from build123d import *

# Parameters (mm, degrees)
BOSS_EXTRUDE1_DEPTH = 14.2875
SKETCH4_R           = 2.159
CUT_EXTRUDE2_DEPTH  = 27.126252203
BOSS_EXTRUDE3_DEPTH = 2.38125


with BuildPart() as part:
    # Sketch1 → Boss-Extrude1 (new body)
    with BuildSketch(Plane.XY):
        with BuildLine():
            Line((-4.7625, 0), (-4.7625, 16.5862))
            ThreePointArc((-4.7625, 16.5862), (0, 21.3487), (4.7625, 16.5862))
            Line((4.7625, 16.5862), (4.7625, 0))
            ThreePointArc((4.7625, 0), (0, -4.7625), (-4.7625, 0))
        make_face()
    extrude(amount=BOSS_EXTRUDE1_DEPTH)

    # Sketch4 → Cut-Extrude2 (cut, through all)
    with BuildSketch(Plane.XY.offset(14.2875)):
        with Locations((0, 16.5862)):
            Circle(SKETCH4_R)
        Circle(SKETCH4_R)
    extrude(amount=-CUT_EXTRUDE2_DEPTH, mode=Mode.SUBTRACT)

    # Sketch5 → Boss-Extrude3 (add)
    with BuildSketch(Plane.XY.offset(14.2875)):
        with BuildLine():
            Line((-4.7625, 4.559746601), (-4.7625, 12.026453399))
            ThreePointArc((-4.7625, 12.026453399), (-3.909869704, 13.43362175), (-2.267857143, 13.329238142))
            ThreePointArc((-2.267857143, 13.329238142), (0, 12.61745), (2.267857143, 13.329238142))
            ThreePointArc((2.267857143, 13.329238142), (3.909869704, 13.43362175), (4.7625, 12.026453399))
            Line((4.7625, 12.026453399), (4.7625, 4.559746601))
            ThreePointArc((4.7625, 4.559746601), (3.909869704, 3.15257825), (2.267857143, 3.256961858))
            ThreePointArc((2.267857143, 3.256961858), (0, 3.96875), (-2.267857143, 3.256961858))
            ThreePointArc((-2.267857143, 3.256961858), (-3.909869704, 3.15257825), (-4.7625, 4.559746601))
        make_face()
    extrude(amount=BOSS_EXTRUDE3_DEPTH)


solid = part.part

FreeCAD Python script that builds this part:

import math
import FreeCAD as App
import Part
import Sketcher
Q = App.Units.Quantity

doc = App.newDocument("Part")
params = doc.addObject("Spreadsheet::Sheet", "Params")
for row, (alias, value) in enumerate([
    ("sketch1_radius", "0.1875 in"),
    ("sketch1_height", "0.653 in"),
    ("pad1_length", "0.5625 in"),
    ("sketch2_diameter", "0.17 in"),
    ("sketch3_radius", "0.0625 in"),
    ("sketch3_radius2", "0.15625 in"),
    ("pad2_length", "0.09375 in"),
], start=1):
    params.set(f"A{row}", alias)
    params.set(f"B{row}", "=" + value)
    params.setAlias(f"B{row}", alias)

body = doc.addObject("PartDesign::Body", "Body")

# Sketch on XY plane
sketch1 = body.newObject("Sketcher::SketchObject", "Sketch")
sketch1.AttachmentSupport = (doc.getObject("XY_Plane"), [""])
sketch1.MapMode = "FlatFace"
sketch1.addGeometry([
    Part.LineSegment(App.Vector(-4.8, 16.6, 0), App.Vector(-4.8, 0, 0)),
    Part.ArcOfCircle(Part.Circle(App.Vector(0, 0, 0), App.Vector(0, 0, 1), 4.8), math.radians(180), math.radians(360)),
    Part.LineSegment(App.Vector(4.8, 0, 0), App.Vector(4.8, 16.6, 0)),
    Part.ArcOfCircle(Part.Circle(App.Vector(0, 16.6, 0), App.Vector(0, 0, 1), 4.8), math.radians(0), math.radians(180)),
], False)
sketch1.addConstraint([
    Sketcher.Constraint("Tangent", 0, 2, 1, 1),
    Sketcher.Constraint("Tangent", 1, 2, 2, 1),
    Sketcher.Constraint("Tangent", 2, 2, 3, 1),
    Sketcher.Constraint("Tangent", 3, 2, 0, 1),
    Sketcher.Constraint("Vertical", 0),
    Sketcher.Constraint("Vertical", 2),
    Sketcher.Constraint("Coincident", 1, 3, -1, 1),
    Sketcher.Constraint("Radius", 1, Q("0.1875 in")),
    Sketcher.Constraint("DistanceY", 0, 2, 0, 1, Q("0.653 in")),
])
sketch1.setExpression("Constraints[7]", "Params.sketch1_radius")
sketch1.setExpression("Constraints[8]", "Params.sketch1_height")
pad1 = body.newObject("PartDesign::Pad", "Pad")
pad1.Profile = sketch1
pad1.setExpression("Length", "Params.pad1_length")

# Sketch on XY plane
sketch2 = body.newObject("Sketcher::SketchObject", "Sketch001")
sketch2.AttachmentSupport = (doc.getObject("XY_Plane"), [""])
sketch2.MapMode = "FlatFace"
sketch2.AttachmentOffset = App.Placement(App.Vector(0, 0, 0.5625 * 25.4), App.Rotation())
sketch2.addGeometry([
    Part.Circle(App.Vector(0, 16.6, 0), App.Vector(0, 0, 1), 2.2),
    Part.Circle(App.Vector(0, 0, 0), App.Vector(0, 0, 1), 2.2),
], False)
sketch2.addConstraint([
    Sketcher.Constraint("Coincident", 1, 3, -1, 1),
    Sketcher.Constraint("Equal", 0, 1),
    Sketcher.Constraint("PointOnObject", 0, 3, -2),
    Sketcher.Constraint("Diameter", 0, Q("0.17 in")),
    Sketcher.Constraint("DistanceY", -1, 1, 0, 3, Q("0.653 in")),
])
sketch2.setExpression("Constraints[3]", "Params.sketch2_diameter")
pocket1 = body.newObject("PartDesign::Pocket", "Pocket")
pocket1.Profile = sketch2
pocket1.Type = "ThroughAll"

# Sketch on XY plane
sketch3 = body.newObject("Sketcher::SketchObject", "Sketch002")
sketch3.AttachmentSupport = (doc.getObject("XY_Plane"), [""])
sketch3.MapMode = "FlatFace"
sketch3.AttachmentOffset = App.Placement(App.Vector(0, 0, 0.5625 * 25.4), App.Rotation())
sketch3.addGeometry([
    Part.LineSegment(App.Vector(-4.8, 12, 0), App.Vector(-4.8, 4.6, 0)),  # 0
    Part.ArcOfCircle(Part.Circle(App.Vector(-3.2, 4.6, 0), App.Vector(0, 0, 1), 1.6), math.radians(180), math.radians(305)),  # 1
    Part.ArcOfCircle(Part.Circle(App.Vector(0, 0, 0), App.Vector(0, 0, 1), 4), math.radians(55), math.radians(125)),  # 2
    Part.ArcOfCircle(Part.Circle(App.Vector(3.2, 4.6, 0), App.Vector(0, 0, 1), 1.6), math.radians(-125), math.radians(0)),  # 3
    Part.LineSegment(App.Vector(4.8, 4.6, 0), App.Vector(4.8, 12, 0)),  # 4
    Part.ArcOfCircle(Part.Circle(App.Vector(3.2, 12, 0), App.Vector(0, 0, 1), 1.6), math.radians(0), math.radians(125)),  # 5
    Part.ArcOfCircle(Part.Circle(App.Vector(0, 16.6, 0), App.Vector(0, 0, 1), 4), math.radians(-125), math.radians(-55)),  # 6
    Part.ArcOfCircle(Part.Circle(App.Vector(-3.2, 12, 0), App.Vector(0, 0, 1), 1.6), math.radians(55), math.radians(180)),  # 7
], False)
sketch3.addConstraint([
    Sketcher.Constraint("Tangent", 0, 2, 1, 1),
    Sketcher.Constraint("Tangent", 1, 2, 2, 2),
    Sketcher.Constraint("Tangent", 2, 1, 3, 1),
    Sketcher.Constraint("Tangent", 3, 2, 4, 1),
    Sketcher.Constraint("Tangent", 4, 2, 5, 1),
    Sketcher.Constraint("Tangent", 5, 2, 6, 2),
    Sketcher.Constraint("Tangent", 6, 1, 7, 1),
    Sketcher.Constraint("Tangent", 7, 2, 0, 1),
    Sketcher.Constraint("Vertical", 0),
    Sketcher.Constraint("Vertical", 4),
    Sketcher.Constraint("Coincident", 2, 3, -1, 1),
    Sketcher.Constraint("Equal", 1, 3),
    Sketcher.Constraint("Equal", 3, 5),
    Sketcher.Constraint("Equal", 2, 6),
    Sketcher.Constraint("Equal", 5, 7),
    Sketcher.Constraint("Symmetric", 5, 3, 7, 3, -2),
    Sketcher.Constraint("Radius", 1, Q("0.0625 in")),
    Sketcher.Constraint("Radius", 2, Q("0.15625 in")),
    Sketcher.Constraint("DistanceX", 1, 3, 3, 3, Q("0.25 in")),
    Sketcher.Constraint("DistanceY", -1, 1, 6, 3, Q("0.653 in")),
])
sketch3.setExpression("Constraints[16]", "Params.sketch3_radius")
sketch3.setExpression("Constraints[17]", "Params.sketch3_radius2")
pad2 = body.newObject("PartDesign::Pad", "Pad001")
pad2.Profile = sketch3
pad2.setExpression("Length", "Params.pad2_length")

doc.recompute()
